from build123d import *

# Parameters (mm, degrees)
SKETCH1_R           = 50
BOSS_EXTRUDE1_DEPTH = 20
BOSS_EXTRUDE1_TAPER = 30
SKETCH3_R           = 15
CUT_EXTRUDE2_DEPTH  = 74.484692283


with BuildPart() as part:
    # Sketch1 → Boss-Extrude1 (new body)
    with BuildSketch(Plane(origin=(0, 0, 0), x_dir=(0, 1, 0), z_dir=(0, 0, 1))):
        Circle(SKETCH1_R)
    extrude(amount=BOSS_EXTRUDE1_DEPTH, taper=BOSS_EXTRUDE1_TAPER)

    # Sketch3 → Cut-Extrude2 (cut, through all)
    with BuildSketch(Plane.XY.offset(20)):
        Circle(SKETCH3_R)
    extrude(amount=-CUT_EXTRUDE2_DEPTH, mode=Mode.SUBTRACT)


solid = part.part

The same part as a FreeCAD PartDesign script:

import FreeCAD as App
import Part
import Sketcher
Q = App.Units.Quantity

doc = App.newDocument("Part")
body = doc.addObject("PartDesign::Body", "Body")

sketch1 = doc.addObject("Sketcher::SketchObject", "Sketch")
body.addObject(sketch1)
sketch1.AttachmentSupport = (doc.XY_Plane, [""])
sketch1.MapMode = "FlatFace"
sketch1.addGeometry(Part.Circle(App.Vector(0, 0, 0), App.Vector(0, 0, 1), 50), False)
sketch1.addConstraint(Sketcher.Constraint("Coincident", 0, 3, -1, 1))
sketch1.addConstraint(Sketcher.Constraint("Diameter", 0, Q("100 mm")))
pad1 = doc.addObject("PartDesign::Pad", "Pad")
body.addObject(pad1)
pad1.Profile = sketch1
pad1.Length = 20
pad1.TaperAngle = -30

sketch2 = doc.addObject("Sketcher::SketchObject", "Sketch001")
body.addObject(sketch2)
sketch2.AttachmentSupport = (doc.XY_Plane, [""])
sketch2.MapMode = "FlatFace"
sketch2.AttachmentOffset = App.Placement(App.Vector(0, 0, 20), App.Rotation())
sketch2.addGeometry(Part.Circle(App.Vector(0, 0, 0), App.Vector(0, 0, 1), 15), False)
sketch2.addConstraint(Sketcher.Constraint("Coincident", 0, 3, -1, 1))
sketch2.addConstraint(Sketcher.Constraint("Diameter", 0, Q("30 mm")))
pocket1 = doc.addObject("PartDesign::Pocket", "Pocket")
body.addObject(pocket1)
pocket1.Profile = sketch2
pocket1.Type = "ThroughAll"

doc.recompute()
